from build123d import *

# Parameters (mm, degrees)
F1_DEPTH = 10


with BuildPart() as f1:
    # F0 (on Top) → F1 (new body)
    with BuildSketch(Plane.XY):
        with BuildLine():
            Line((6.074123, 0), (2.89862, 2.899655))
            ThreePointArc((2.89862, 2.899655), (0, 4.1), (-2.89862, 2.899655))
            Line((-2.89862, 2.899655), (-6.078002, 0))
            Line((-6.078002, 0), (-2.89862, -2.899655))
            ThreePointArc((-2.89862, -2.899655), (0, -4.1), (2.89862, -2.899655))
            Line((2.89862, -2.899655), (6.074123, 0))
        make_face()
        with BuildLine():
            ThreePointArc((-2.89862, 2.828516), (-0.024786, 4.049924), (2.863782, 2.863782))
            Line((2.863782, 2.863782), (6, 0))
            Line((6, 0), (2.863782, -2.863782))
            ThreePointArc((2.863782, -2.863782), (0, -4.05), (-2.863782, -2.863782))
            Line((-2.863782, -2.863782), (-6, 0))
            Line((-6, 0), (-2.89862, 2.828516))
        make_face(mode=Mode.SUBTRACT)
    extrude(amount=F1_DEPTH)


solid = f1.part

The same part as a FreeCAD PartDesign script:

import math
import FreeCAD as App
import Part
import Sketcher
from FreeCAD import Vector
Q = App.Units.Quantity

doc = App.newDocument("Part")
body = doc.addObject("PartDesign::Body", "Body")

# Sketch on XY plane
sketch1 = doc.addObject("Sketcher::SketchObject", "Sketch")
body.addObject(sketch1)
sketch1.AttachmentSupport = (doc.XY_Plane, [""])
sketch1.MapMode = "FlatFace"
sketch1.addGeometry([
    Part.LineSegment(Vector(6.074123, 0, 0), Vector(2.89862, 2.899655, 0)),  # 0
    Part.ArcOfCircle(Part.Circle(Vector(0, 0.000001, 0), Vector(0, 0, 1), 4.099999), math.radians(45.010215), math.radians(134.989785)),  # 1
    Part.LineSegment(Vector(-2.89862, 2.899655, 0), Vector(-6.078002, 0, 0)),  # 2
    Part.LineSegment(Vector(-6.078002, 0, 0), Vector(-2.89862, -2.899655, 0)),  # 3
    Part.ArcOfCircle(Part.Circle(Vector(0, -0.000001, 0), Vector(0, 0, 1), 4.099999), math.radians(-134.989785), math.radians(-45.010215)),  # 4
    Part.LineSegment(Vector(2.89862, -2.899655, 0), Vector(6.074123, 0, 0)),  # 5
    Part.LineSegment(Vector(-6, 0, 0), Vector(-2.89862, 2.828516, 0)),  # 6
    Part.ArcOfCircle(Part.Circle(Vector(-0.000001, 0, 0), Vector(0, 0, 1), 4.049999), math.radians(44.99999), math.radians(135.701303)),  # 7
    Part.LineSegment(Vector(2.863782, 2.863782, 0), Vector(6, 0, 0)),  # 8
    Part.LineSegment(Vector(6, 0, 0), Vector(2.863782, -2.863782, 0)),  # 9
    Part.ArcOfCircle(Part.Circle(Vector(0, -0.000002, 0), Vector(0, 0, 1), 4.049998), math.radians(-135.000022), math.radians(-44.999978)),  # 10
    Part.LineSegment(Vector(-2.863782, -2.863782, 0), Vector(-6, 0, 0)),  # 11
], False)
sketch1.addConstraint([
    Sketcher.Constraint("Coincident", 0, 2, 1, 1),
    Sketcher.Constraint("Coincident", 1, 2, 2, 1),
    Sketcher.Constraint("Coincident", 2, 2, 3, 1),
    Sketcher.Constraint("Coincident", 3, 2, 4, 1),
    Sketcher.Constraint("Coincident", 4, 2, 5, 1),
    Sketcher.Constraint("Coincident", 5, 2, 0, 1),
    Sketcher.Constraint("Coincident", 6, 2, 7, 2),
    Sketcher.Constraint("Coincident", 7, 1, 8, 1),
    Sketcher.Constraint("Coincident", 8, 2, 9, 1),
    Sketcher.Constraint("Coincident", 9, 2, 10, 2),
    Sketcher.Constraint("Coincident", 10, 1, 11, 1),
    Sketcher.Constraint("Coincident", 11, 2, 6, 1),
    Sketcher.Constraint("Coincident", 1, 3, -1, 1),
    Sketcher.Constraint("Coincident", 4, 3, -1, 1),
    Sketcher.Constraint("Coincident", 7, 3, -1, 1),
    Sketcher.Constraint("Coincident", 10, 3, -1, 1),
    Sketcher.Constraint("PointOnObject", 2, 2, -1),
    Sketcher.Constraint("PointOnObject", 5, 2, -1),
    Sketcher.Constraint("PointOnObject", 8, 2, -1),
    Sketcher.Constraint("PointOnObject", 11, 2, -1),
    Sketcher.Constraint("Radius", 1, Q("4.099999 mm")),
    Sketcher.Constraint("Radius", 4, Q("4.099999 mm")),
    Sketcher.Constraint("Radius", 7, Q("4.049999 mm")),
    Sketcher.Constraint("DistanceX", -1, 1, 8, 2, Q("6 mm")),
    Sketcher.Constraint("DistanceX", 11, 2, -1, 1, Q("6 mm")),
    Sketcher.Constraint("DistanceX", 2, 2, -1, 1, Q("6.078002 mm")),
    Sketcher.Constraint("Radius", 10, Q("4.049998 mm")),
    Sketcher.Constraint("Distance", 0, Q("4.300211 mm")),
    Sketcher.Constraint("Distance", 5, Q("4.300211 mm")),
    Sketcher.Constraint("Distance", 8, Q("4.247012 mm")),
    Sketcher.Constraint("Distance", 9, Q("4.247012 mm")),
    Sketcher.Constraint("Distance", 11, Q("4.247012 mm")),
    Sketcher.Constraint("DistanceX", -1, 1, 0, 2, Q("2.89862 mm")),
    Sketcher.Constraint("DistanceX", 1, 2, -1, 1, Q("2.89862 mm")),
    Sketcher.Constraint("DistanceX", 3, 2, -1, 1, Q("2.89862 mm")),
    Sketcher.Constraint("DistanceX", 6, 2, -1, 1, Q("2.89862 mm")),
])
pad1 = doc.addObject("PartDesign::Pad", "Pad")
body.addObject(pad1)
pad1.Profile = sketch1
pad1.Length = 10

doc.recompute()
